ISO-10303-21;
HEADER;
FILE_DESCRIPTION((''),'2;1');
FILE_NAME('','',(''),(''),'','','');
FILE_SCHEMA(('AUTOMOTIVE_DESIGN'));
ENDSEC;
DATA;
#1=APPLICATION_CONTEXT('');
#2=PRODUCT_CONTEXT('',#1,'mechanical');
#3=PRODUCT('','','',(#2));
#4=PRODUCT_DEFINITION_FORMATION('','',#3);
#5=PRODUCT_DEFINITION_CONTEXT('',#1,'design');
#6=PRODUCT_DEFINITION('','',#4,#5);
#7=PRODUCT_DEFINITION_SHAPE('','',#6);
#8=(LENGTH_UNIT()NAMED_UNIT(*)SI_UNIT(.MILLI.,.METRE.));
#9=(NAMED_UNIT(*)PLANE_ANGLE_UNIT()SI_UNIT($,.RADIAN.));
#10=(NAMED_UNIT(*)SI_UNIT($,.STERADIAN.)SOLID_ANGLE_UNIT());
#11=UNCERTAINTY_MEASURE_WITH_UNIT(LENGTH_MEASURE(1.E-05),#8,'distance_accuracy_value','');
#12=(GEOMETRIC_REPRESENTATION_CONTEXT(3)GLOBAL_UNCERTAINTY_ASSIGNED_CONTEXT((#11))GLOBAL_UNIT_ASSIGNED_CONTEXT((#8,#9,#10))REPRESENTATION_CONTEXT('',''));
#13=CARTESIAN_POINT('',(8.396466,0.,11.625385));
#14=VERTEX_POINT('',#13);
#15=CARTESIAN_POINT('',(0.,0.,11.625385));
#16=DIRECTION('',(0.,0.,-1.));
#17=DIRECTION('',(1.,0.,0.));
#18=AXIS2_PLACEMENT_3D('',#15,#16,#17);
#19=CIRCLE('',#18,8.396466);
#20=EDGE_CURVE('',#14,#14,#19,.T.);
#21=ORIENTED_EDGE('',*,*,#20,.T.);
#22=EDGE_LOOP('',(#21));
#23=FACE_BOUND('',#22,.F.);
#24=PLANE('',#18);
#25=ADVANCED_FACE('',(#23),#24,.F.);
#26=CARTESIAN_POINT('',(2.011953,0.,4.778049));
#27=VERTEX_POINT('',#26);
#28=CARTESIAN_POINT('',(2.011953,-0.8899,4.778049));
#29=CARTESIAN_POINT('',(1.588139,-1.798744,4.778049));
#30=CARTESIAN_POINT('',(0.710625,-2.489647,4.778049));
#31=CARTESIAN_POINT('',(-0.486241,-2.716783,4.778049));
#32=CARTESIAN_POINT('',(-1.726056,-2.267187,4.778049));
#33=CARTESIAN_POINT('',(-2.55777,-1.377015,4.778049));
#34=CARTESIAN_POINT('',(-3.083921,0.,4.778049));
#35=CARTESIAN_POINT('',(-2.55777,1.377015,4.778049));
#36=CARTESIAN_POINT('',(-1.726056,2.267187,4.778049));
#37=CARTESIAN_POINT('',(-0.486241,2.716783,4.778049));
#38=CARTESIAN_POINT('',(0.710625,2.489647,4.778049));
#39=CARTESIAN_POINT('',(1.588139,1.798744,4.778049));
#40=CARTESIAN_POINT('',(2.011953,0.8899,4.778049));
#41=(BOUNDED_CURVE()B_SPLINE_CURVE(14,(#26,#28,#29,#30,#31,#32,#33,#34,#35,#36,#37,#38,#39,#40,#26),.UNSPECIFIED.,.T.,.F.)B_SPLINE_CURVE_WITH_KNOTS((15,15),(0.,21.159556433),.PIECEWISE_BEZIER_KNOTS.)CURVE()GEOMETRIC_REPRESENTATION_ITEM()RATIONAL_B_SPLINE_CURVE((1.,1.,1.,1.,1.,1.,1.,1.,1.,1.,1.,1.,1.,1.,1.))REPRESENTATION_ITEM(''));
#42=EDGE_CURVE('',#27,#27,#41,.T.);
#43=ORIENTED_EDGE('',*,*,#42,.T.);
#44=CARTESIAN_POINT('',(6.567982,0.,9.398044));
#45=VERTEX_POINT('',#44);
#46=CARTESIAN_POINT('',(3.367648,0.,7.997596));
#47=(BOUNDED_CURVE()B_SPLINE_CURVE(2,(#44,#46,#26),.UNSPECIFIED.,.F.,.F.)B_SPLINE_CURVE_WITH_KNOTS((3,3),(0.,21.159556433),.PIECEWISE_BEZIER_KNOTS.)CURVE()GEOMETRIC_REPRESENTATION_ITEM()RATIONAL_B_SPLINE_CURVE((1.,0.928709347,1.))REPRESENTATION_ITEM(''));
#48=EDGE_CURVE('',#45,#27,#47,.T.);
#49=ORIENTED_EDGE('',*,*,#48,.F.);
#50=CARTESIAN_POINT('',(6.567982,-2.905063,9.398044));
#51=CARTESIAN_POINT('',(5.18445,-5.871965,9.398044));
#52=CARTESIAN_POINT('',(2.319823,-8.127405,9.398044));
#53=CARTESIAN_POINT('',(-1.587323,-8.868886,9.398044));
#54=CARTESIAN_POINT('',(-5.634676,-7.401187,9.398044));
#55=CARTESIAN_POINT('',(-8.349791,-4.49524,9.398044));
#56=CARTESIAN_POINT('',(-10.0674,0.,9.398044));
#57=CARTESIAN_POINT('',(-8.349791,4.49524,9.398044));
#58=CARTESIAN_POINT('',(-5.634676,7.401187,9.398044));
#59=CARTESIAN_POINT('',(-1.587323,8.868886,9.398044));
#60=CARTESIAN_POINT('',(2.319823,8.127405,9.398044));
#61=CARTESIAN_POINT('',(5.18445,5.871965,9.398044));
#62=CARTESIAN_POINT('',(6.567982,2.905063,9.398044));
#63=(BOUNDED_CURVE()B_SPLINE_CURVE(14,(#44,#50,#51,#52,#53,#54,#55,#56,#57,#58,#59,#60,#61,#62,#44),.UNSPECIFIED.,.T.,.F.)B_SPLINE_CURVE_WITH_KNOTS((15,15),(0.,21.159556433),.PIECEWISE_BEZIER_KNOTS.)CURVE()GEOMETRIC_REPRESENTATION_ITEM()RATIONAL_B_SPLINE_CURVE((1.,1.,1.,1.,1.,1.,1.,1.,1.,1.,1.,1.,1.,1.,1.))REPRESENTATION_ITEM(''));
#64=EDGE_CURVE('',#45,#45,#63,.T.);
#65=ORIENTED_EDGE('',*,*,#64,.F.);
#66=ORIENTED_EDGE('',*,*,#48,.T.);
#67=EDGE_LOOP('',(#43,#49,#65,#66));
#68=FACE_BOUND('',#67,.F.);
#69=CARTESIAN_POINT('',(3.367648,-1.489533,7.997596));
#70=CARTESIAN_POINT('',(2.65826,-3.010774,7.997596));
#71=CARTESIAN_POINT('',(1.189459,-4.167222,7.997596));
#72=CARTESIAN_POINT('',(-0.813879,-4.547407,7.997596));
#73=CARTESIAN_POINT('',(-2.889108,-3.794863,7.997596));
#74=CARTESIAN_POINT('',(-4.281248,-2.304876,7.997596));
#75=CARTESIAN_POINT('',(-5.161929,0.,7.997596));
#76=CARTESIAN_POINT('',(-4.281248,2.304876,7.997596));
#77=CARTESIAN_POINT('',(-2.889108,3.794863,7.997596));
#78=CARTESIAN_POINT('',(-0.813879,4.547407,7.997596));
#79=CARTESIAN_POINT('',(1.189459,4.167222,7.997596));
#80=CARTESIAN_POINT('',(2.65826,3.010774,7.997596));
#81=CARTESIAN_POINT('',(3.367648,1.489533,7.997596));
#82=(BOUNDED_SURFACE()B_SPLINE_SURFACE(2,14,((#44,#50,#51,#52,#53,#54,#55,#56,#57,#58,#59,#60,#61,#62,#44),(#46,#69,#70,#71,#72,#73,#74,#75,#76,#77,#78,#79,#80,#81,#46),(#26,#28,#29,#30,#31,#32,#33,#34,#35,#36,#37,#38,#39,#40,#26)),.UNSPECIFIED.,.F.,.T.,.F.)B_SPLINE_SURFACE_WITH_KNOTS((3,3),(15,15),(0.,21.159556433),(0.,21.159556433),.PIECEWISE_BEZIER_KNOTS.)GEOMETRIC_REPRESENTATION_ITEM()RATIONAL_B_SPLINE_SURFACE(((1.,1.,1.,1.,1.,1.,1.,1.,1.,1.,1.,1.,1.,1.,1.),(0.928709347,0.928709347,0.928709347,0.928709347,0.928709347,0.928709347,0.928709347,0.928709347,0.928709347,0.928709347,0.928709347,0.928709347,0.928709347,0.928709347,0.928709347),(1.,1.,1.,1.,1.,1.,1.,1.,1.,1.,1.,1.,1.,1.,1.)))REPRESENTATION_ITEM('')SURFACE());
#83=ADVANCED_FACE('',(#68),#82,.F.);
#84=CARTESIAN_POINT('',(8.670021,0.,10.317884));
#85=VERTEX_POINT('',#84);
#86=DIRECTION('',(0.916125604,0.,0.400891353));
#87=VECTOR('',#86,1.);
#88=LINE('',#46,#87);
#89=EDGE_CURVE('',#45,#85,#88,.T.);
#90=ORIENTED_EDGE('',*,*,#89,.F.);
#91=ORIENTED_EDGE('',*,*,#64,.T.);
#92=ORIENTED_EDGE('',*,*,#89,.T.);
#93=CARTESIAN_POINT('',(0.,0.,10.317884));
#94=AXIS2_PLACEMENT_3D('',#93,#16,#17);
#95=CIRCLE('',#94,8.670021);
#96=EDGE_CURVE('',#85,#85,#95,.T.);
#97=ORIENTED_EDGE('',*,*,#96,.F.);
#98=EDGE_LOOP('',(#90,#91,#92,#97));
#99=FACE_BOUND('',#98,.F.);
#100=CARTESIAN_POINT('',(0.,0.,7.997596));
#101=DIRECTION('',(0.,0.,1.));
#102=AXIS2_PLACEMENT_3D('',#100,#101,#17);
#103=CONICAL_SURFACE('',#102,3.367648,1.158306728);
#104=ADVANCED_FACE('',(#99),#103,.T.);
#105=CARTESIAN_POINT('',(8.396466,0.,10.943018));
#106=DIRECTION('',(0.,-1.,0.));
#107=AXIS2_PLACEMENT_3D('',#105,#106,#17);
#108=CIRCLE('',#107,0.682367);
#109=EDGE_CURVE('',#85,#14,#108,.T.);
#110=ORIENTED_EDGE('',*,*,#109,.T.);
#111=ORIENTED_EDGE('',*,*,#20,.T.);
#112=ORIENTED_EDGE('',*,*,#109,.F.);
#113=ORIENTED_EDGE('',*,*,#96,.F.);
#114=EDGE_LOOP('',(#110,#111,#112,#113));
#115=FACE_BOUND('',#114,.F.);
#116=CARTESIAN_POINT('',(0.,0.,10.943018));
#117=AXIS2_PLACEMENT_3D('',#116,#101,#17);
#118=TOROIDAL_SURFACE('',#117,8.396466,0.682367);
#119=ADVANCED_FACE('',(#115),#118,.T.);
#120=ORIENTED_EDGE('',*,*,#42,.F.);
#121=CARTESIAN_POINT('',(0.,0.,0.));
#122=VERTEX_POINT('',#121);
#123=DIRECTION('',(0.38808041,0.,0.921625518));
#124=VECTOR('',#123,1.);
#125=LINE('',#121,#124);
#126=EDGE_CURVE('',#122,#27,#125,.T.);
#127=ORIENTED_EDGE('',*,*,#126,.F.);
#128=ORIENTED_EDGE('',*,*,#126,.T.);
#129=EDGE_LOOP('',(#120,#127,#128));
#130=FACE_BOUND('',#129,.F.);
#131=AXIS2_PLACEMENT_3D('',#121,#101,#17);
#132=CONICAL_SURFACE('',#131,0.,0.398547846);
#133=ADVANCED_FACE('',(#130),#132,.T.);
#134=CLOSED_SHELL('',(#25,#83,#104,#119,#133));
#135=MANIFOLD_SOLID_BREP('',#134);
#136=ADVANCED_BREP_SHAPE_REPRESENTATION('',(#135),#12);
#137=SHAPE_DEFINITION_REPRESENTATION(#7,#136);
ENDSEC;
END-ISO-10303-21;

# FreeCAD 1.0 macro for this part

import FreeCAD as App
import Part
import Sketcher

V = App.Vector


def edges_at(feature, points):
    """Names of the edges that pass closest to the given points."""
    edges = feature.Shape.Edges
    near = lambda p: min(range(len(edges)), key=lambda i: edges[i].distToShape(Part.Vertex(*p))[0])
    return sorted({f"Edge{near(p) + 1}" for p in points})

doc = App.newDocument("Part")
params = doc.addObject("Spreadsheet::Sheet", "Params")
for row, (alias, value) in enumerate([
    ("revolution_angle", "360 deg"),
    ("fillet_radius", "0.682367 mm"),
    ("fillet2_radius", "8.749241 mm"),
], start=1):
    params.set(f"A{row}", alias)
    params.set(f"B{row}", "=" + value)
    params.setAlias(f"B{row}", alias)

body = doc.addObject("PartDesign::Body", "Body")

# Sketch on XZ plane
sketch1 = body.newObject("Sketcher::SketchObject", "Sketch")
sketch1.AttachmentSupport = (doc.getObject("XZ_Plane"), [""])
sketch1.MapMode = "FlatFace"
sketch1.addGeometry(Part.LineSegment(V(0, 12, 0), V(0, 0, 0)), False)
sketch1.addGeometry(Part.LineSegment(V(0, 0, 0), V(3, 8, 0)), False)
sketch1.addGeometry(Part.LineSegment(V(3, 8, 0), V(12, 12, 0)), False)
sketch1.addGeometry(Part.LineSegment(V(12, 12, 0), V(0, 12, 0)), False)
sketch1.addConstraint(Sketcher.Constraint("Coincident", 0, 2, 1, 1))
sketch1.addConstraint(Sketcher.Constraint("Coincident", 1, 2, 2, 1))
sketch1.addConstraint(Sketcher.Constraint("Coincident", 2, 2, 3, 1))
sketch1.addConstraint(Sketcher.Constraint("Coincident", 3, 2, 0, 1))
sketch1.addConstraint(Sketcher.Constraint("Vertical", 0))
sketch1.addConstraint(Sketcher.Constraint("Horizontal", 3))
sketch1.addConstraint(Sketcher.Constraint("Coincident", 0, 2, -1, 1))
sketch1.addConstraint(Sketcher.Constraint("DistanceX", 3, 2, 3, 1, 11.65795))
sketch1.addConstraint(Sketcher.Constraint("DistanceY", 0, 2, 0, 1, 11.625385))
sketch1.addConstraint(Sketcher.Constraint("DistanceX", -1, 1, 1, 2, 3.367648))
sketch1.addConstraint(Sketcher.Constraint("DistanceY", 1, 2, 2, 2, 3.627789))
revolution = body.newObject("PartDesign::Revolution", "Revolution")
revolution.Profile = sketch1
revolution.ReferenceAxis = (sketch1, ["V_Axis"])
revolution.setExpression("Angle", "Params.revolution_angle")
doc.recompute()

fillet = body.newObject("PartDesign::Fillet", "Fillet")
fillet.Base = (revolution, edges_at(revolution, [(-11.658, 0, 11.625)]))
fillet.setExpression("Radius", "Params.fillet_radius")
doc.recompute()

fillet2 = body.newObject("PartDesign::Fillet", "Fillet001")
fillet2.Base = (fillet, edges_at(fillet, [(-3.368, 0, 7.998)]))
fillet2.setExpression("Radius", "Params.fillet2_radius")

doc.recompute()
